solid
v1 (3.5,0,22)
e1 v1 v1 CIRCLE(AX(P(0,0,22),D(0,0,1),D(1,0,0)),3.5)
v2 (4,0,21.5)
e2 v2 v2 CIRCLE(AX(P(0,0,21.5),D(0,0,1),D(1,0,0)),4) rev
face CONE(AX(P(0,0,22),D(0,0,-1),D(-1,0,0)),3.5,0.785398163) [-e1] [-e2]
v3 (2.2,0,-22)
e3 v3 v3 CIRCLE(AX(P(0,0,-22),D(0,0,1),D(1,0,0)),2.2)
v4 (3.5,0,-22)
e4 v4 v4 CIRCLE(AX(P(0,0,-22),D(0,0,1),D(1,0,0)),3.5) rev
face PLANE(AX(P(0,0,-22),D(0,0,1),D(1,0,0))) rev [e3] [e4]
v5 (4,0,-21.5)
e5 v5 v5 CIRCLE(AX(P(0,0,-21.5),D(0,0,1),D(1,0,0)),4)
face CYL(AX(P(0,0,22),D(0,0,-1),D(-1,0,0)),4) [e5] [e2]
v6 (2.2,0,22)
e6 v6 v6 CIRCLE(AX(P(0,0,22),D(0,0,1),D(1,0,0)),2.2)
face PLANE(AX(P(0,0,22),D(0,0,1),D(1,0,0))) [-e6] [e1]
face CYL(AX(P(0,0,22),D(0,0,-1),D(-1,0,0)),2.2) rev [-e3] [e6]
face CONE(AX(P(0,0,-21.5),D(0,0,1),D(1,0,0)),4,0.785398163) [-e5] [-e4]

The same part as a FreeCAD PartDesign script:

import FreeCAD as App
import Part
import Sketcher
from FreeCAD import Vector


def edges_at(feature, points):
    """Names of the edges that pass closest to the given points."""
    edges = feature.Shape.Edges
    near = lambda p: min(range(len(edges)), key=lambda i: edges[i].distToShape(Part.Vertex(*p))[0])
    return sorted({f"Edge{near(p) + 1}" for p in points})

doc = App.newDocument("Part")
body = doc.addObject("PartDesign::Body", "Body")

sketch1 = body.newObject("Sketcher::SketchObject", "Sketch")
sketch1.AttachmentSupport = (doc.getObject("XY_Plane"), [""])
sketch1.MapMode = "FlatFace"
sketch1.addGeometry([
    Part.Circle(Vector(0, 0, 0), Vector(0, 0, 1), 4),
    Part.Circle(Vector(0, 0, 0), Vector(0, 0, 1), 2.2),
], False)
sketch1.addConstraint([
    Sketcher.Constraint("Coincident", 0, 3, -1, 1),
    Sketcher.Constraint("Coincident", 1, 3, -1, 1),
    Sketcher.Constraint("Diameter", 0, 8.0),
    Sketcher.Constraint("Diameter", 1, 4.4),
])
pad1 = body.newObject("PartDesign::Pad", "Pad")
pad1.Profile = sketch1
pad1.Length = 44
pad1.Midplane = True
doc.recompute()

chamfer = body.newObject("PartDesign::Chamfer", "Chamfer")
chamfer.Base = (pad1, edges_at(pad1, [(-4, 0, -22), (-4, 0, 22)]))
chamfer.Size = 0.5

doc.recompute()
